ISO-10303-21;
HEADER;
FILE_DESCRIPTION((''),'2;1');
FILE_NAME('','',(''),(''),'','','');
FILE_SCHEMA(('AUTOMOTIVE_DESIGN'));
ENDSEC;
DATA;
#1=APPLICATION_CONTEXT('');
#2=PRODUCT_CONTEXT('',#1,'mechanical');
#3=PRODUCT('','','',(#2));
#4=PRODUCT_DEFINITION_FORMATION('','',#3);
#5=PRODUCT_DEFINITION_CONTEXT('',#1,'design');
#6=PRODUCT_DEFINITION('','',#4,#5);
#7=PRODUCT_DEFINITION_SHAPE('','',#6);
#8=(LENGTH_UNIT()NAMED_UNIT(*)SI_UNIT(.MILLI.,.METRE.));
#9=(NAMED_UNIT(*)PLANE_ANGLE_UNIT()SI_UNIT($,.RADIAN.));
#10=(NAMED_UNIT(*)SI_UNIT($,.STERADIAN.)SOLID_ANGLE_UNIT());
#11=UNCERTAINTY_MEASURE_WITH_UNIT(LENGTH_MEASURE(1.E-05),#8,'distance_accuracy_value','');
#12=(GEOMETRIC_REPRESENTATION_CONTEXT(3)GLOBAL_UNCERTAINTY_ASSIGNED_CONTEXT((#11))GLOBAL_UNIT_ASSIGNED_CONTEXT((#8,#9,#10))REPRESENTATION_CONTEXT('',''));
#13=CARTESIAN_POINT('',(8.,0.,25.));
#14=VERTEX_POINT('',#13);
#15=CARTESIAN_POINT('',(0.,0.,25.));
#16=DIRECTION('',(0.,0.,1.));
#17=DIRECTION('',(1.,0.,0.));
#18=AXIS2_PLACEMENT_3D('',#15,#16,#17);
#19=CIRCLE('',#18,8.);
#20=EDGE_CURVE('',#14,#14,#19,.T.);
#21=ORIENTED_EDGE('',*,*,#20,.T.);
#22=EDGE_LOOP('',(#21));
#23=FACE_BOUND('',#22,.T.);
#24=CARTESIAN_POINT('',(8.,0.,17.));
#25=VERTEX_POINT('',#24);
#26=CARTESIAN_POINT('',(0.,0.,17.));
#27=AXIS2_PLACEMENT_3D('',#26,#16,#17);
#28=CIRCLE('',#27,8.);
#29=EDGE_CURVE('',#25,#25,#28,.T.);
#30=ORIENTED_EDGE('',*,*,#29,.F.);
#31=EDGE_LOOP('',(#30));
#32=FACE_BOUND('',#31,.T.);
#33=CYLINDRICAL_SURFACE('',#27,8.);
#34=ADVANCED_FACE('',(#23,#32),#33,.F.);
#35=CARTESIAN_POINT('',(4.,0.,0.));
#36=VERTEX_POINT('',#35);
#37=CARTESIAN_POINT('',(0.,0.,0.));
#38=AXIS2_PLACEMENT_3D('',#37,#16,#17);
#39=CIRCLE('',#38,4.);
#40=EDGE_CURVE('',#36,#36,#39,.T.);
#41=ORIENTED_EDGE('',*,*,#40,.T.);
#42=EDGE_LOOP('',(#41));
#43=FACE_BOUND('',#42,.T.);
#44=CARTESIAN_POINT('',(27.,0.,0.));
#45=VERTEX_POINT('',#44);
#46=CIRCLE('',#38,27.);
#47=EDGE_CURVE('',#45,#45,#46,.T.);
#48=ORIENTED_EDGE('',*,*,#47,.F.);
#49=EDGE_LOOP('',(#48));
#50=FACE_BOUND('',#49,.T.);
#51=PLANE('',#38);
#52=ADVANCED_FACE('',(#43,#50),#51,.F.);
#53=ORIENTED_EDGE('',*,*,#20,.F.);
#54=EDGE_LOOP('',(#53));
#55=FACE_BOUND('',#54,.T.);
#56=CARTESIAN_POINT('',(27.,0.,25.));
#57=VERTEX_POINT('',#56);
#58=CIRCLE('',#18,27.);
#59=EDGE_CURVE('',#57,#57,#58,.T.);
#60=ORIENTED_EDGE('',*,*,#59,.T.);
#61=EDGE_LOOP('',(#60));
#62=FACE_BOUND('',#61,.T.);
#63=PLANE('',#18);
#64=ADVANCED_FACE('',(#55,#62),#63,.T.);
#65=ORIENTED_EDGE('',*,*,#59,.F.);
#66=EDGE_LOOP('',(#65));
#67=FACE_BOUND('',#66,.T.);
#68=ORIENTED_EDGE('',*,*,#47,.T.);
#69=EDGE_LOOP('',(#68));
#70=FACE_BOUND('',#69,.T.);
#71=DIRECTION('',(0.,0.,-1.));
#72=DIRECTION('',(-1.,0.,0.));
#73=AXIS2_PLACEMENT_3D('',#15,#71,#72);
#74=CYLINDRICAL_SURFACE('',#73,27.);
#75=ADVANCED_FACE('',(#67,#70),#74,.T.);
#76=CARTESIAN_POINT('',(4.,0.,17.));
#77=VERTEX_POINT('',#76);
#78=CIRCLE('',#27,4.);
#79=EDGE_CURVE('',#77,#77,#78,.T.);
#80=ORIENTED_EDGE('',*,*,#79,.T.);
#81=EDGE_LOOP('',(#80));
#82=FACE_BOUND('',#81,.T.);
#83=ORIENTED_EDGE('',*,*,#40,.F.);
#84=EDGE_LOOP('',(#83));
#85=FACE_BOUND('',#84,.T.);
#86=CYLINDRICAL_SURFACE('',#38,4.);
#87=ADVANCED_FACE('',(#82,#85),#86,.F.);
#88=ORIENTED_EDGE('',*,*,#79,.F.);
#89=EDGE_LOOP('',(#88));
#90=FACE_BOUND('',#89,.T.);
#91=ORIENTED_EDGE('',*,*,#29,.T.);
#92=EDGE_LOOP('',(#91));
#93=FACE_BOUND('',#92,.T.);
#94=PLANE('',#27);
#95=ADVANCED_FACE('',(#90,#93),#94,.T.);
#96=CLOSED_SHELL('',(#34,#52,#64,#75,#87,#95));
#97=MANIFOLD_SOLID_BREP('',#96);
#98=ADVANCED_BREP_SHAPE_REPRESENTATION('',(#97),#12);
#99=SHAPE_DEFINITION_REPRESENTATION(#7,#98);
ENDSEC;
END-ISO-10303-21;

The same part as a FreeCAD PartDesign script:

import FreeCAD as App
import Part
import Sketcher
from FreeCAD import Vector

doc = App.newDocument("Part")
params = doc.addObject("Spreadsheet::Sheet", "Params")
for row, (alias, value) in enumerate([
    ("sketch1_diameter", "54 mm"),
    ("pad1_length", "25 mm"),
    ("sketch2_diameter", "16 mm"),
    ("pocket1_length", "8 mm"),
    ("sketch3_diameter", "8 mm"),
], start=1):
    params.set(f"A{row}", alias)
    params.set(f"B{row}", "=" + value)
    params.setAlias(f"B{row}", alias)

body = doc.addObject("PartDesign::Body", "Body")

sketch1 = body.newObject("Sketcher::SketchObject", "Sketch")
sketch1.AttachmentSupport = (doc.getObject("XY_Plane"), [""])
sketch1.MapMode = "FlatFace"
sketch1.addGeometry(Part.Circle(Vector(0, 0, 0), Vector(0, 0, 1), 27), False)
sketch1.addConstraint(Sketcher.Constraint("Coincident", 0, 3, -1, 1))
sketch1.addConstraint(Sketcher.Constraint("Diameter", 0, 54.0))
sketch1.setExpression("Constraints[1]", "Params.sketch1_diameter")
pad1 = body.newObject("PartDesign::Pad", "Pad")
pad1.Profile = sketch1
pad1.setExpression("Length", "Params.pad1_length")

sketch2 = body.newObject("Sketcher::SketchObject", "Sketch001")
sketch2.AttachmentSupport = (doc.getObject("XY_Plane"), [""])
sketch2.MapMode = "FlatFace"
sketch2.AttachmentOffset = App.Placement(Vector(0, 0, 25), App.Rotation())
sketch2.addGeometry(Part.Circle(Vector(0, 0, 0), Vector(0, 0, 1), 8), False)
sketch2.addConstraint(Sketcher.Constraint("Coincident", 0, 3, -1, 1))
sketch2.addConstraint(Sketcher.Constraint("Diameter", 0, 16.0))
sketch2.setExpression("Constraints[1]", "Params.sketch2_diameter")
pocket1 = body.newObject("PartDesign::Pocket", "Pocket")
pocket1.Profile = sketch2
pocket1.setExpression("Length", "Params.pocket1_length")

sketch3 = body.newObject("Sketcher::SketchObject", "Sketch002")
sketch3.AttachmentSupport = (doc.getObject("XY_Plane"), [""])
sketch3.MapMode = "FlatFace"
sketch3.AttachmentOffset = App.Placement(Vector(0, 0, 17), App.Rotation())
sketch3.addGeometry(Part.Circle(Vector(0, 0, 0), Vector(0, 0, 1), 4), False)
sketch3.addConstraint(Sketcher.Constraint("Coincident", 0, 3, -1, 1))
sketch3.addConstraint(Sketcher.Constraint("Diameter", 0, 8.0))
sketch3.setExpression("Constraints[1]", "Params.sketch3_diameter")
pocket2 = body.newObject("PartDesign::Pocket", "Pocket001")
pocket2.Profile = sketch3
pocket2.Type = "ThroughAll"

doc.recompute()
